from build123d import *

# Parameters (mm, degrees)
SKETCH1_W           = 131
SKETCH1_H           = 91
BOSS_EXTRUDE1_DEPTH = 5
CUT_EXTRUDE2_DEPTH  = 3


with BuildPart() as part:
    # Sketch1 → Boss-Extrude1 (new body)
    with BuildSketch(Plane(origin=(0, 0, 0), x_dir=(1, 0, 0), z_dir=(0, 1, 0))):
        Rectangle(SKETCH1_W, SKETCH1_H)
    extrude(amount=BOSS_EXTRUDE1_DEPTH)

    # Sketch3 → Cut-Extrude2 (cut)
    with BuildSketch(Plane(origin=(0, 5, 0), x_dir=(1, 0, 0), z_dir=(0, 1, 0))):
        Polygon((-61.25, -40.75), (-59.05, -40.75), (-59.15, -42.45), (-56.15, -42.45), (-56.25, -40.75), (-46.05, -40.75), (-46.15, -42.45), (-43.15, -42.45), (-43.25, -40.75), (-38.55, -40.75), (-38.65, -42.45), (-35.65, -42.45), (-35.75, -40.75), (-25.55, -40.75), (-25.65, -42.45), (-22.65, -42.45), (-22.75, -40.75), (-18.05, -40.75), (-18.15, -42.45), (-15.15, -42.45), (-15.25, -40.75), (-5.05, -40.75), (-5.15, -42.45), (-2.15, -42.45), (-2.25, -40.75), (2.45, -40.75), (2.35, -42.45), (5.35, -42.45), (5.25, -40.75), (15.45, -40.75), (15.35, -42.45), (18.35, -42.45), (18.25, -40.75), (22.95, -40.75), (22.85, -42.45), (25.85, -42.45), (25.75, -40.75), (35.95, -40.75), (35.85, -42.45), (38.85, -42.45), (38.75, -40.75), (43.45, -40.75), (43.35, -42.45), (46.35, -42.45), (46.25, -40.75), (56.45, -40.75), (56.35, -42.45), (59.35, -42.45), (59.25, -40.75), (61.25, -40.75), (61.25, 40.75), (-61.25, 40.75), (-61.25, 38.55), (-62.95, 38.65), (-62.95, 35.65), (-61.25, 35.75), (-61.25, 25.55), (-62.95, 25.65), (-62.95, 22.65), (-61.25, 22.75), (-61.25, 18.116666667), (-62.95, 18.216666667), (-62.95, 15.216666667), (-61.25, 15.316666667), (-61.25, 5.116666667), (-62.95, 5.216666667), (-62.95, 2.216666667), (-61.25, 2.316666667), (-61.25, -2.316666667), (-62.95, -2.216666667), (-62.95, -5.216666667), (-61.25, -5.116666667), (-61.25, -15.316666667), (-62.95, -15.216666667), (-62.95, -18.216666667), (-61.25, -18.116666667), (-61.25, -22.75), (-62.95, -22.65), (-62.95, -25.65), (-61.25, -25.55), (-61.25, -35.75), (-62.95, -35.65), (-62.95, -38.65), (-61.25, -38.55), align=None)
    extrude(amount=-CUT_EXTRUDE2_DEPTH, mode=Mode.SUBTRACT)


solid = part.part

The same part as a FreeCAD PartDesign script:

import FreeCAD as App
import Part
import Sketcher
Q = App.Units.Quantity


def add_polygon(sketch, points):
    """Adds a closed chain of lines whose ends are joined by coincident constraints."""
    first, n = sketch.GeometryCount, len(points)
    for a, b in zip(points, points[1:] + points[:1]):
        sketch.addGeometry(Part.LineSegment(App.Vector(*a, 0), App.Vector(*b, 0)), False)
    for i in range(n):
        sketch.addConstraint(Sketcher.Constraint("Coincident", first + i, 2, first + (i + 1) % n, 1))

doc = App.newDocument("Part")
params = doc.addObject("Spreadsheet::Sheet", "Params")
for row, (alias, value) in enumerate([
    ("sketch1_width", "131 mm"),
    ("sketch1_height", "91 mm"),
    ("pad1_length", "5 mm"),
    ("sketch2_width", "3 mm"),
    ("sketch2_width2", "2 mm"),
    ("sketch2_width3", "2.2 mm"),
    ("sketch2_width4", "10.2 mm"),
    ("sketch2_width5", "4.7 mm"),
    ("pocket1_length", "3 mm"),
], start=1):
    params.set(f"A{row}", alias)
    params.set(f"B{row}", "=" + value)
    params.setAlias(f"B{row}", alias)

body = doc.addObject("PartDesign::Body", "Body")

# Sketch on XZ plane
sketch1 = body.newObject("Sketcher::SketchObject", "Sketch")
sketch1.AttachmentSupport = (doc.getObject("XZ_Plane"), [""])
sketch1.MapMode = "FlatFace"
add_polygon(sketch1, [(-65.5, -45.5), (-65.5, 45.5), (65.5, 45.5), (65.5, -45.5)])  # lines 0-3
sketch1.addConstraint([
    Sketcher.Constraint("Vertical", 0),
    Sketcher.Constraint("Horizontal", 1),
    Sketcher.Constraint("Vertical", 2),
    Sketcher.Constraint("Horizontal", 3),
    Sketcher.Constraint("Symmetric", 0, 2, 2, 2, -1, 1),
    Sketcher.Constraint("DistanceX", 1, 1, 1, 2, Q("131 mm")),
    Sketcher.Constraint("DistanceY", 0, 1, 0, 2, Q("91 mm")),
])
sketch1.setExpression("Constraints[9]", "Params.sketch1_width")
sketch1.setExpression("Constraints[10]", "Params.sketch1_height")
pad1 = body.newObject("PartDesign::Pad", "Pad")
pad1.Profile = sketch1
pad1.setExpression("Length", "Params.pad1_length")
pad1.Reversed = True

# Sketch on XZ plane
sketch2 = body.newObject("Sketcher::SketchObject", "Sketch001")
sketch2.AttachmentSupport = (doc.getObject("XZ_Plane"), [""])
sketch2.MapMode = "FlatFace"
sketch2.AttachmentOffset = App.Placement(App.Vector(0, 0, -5), App.Rotation())
add_polygon(sketch2, [(-61.25, 40.75), (-59.05, 40.75), (-59.15, 42.45), (-56.15, 42.45), (-56.25, 40.75), (-46.05, 40.75), (-46.15, 42.45), (-43.15, 42.45), (-43.25, 40.75), (-38.55, 40.75), (-38.65, 42.45), (-35.65, 42.45), (-35.75, 40.75), (-25.55, 40.75), (-25.65, 42.45), (-22.65, 42.45), (-22.75, 40.75), (-18.05, 40.75), (-18.15, 42.45), (-15.15, 42.45), (-15.25, 40.75), (-5.05, 40.75), (-5.15, 42.45), (-2.15, 42.45), (-2.25, 40.75), (2.45, 40.75), (2.35, 42.45), (5.35, 42.45), (5.25, 40.75), (15.45, 40.75), (15.35, 42.45), (18.35, 42.45), (18.25, 40.75), (22.95, 40.75), (22.85, 42.45), (25.85, 42.45), (25.75, 40.75), (35.95, 40.75), (35.85, 42.45), (38.85, 42.45), (38.75, 40.75), (43.45, 40.75), (43.35, 42.45), (46.35, 42.45), (46.25, 40.75), (56.45, 40.75), (56.35, 42.45), (59.35, 42.45), (59.25, 40.75), (61.25, 40.75), (61.25, -40.75), (-61.25, -40.75), (-61.25, -38.55), (-62.95, -38.65), (-62.95, -35.65), (-61.25, -35.75), (-61.25, -25.55), (-62.95, -25.65), (-62.95, -22.65), (-61.25, -22.75), (-61.25, -18.116667), (-62.95, -18.216667), (-62.95, -15.216667), (-61.25, -15.316667), (-61.25, -5.116667), (-62.95, -5.216667), (-62.95, -2.216667), (-61.25, -2.316667), (-61.25, 2.316667), (-62.95, 2.216667), (-62.95, 5.216667), (-61.25, 5.116667), (-61.25, 15.316667), (-62.95, 15.216667), (-62.95, 18.216667), (-61.25, 18.116667), (-61.25, 22.75), (-62.95, 22.65), (-62.95, 25.65), (-61.25, 25.55), (-61.25, 35.75), (-62.95, 35.65), (-62.95, 38.65), (-61.25, 38.55)])  # lines 0-83
sketch2.addConstraint([
    Sketcher.Constraint("Horizontal", 0),
    Sketcher.Constraint("Horizontal", 2),
    Sketcher.Constraint("Horizontal", 4),
    Sketcher.Constraint("Horizontal", 6),
    Sketcher.Constraint("Horizontal", 8),
    Sketcher.Constraint("Horizontal", 10),
    Sketcher.Constraint("Horizontal", 12),
    Sketcher.Constraint("Horizontal", 14),
    Sketcher.Constraint("Horizontal", 16),
    Sketcher.Constraint("Horizontal", 18),
    Sketcher.Constraint("Horizontal", 20),
    Sketcher.Constraint("Horizontal", 22),
    Sketcher.Constraint("Horizontal", 24),
    Sketcher.Constraint("Horizontal", 26),
    Sketcher.Constraint("Horizontal", 28),
    Sketcher.Constraint("Horizontal", 30),
    Sketcher.Constraint("Horizontal", 32),
    Sketcher.Constraint("Horizontal", 34),
    Sketcher.Constraint("Horizontal", 36),
    Sketcher.Constraint("Horizontal", 38),
    Sketcher.Constraint("Horizontal", 40),
    Sketcher.Constraint("Horizontal", 42),
    Sketcher.Constraint("Horizontal", 44),
    Sketcher.Constraint("Horizontal", 46),
    Sketcher.Constraint("Horizontal", 48),
    Sketcher.Constraint("Vertical", 49),
    Sketcher.Constraint("Horizontal", 50),
    Sketcher.Constraint("Vertical", 51),
    Sketcher.Constraint("Vertical", 53),
    Sketcher.Constraint("Vertical", 55),
    Sketcher.Constraint("Vertical", 57),
    Sketcher.Constraint("Vertical", 59),
    Sketcher.Constraint("Vertical", 61),
    Sketcher.Constraint("Vertical", 63),
    Sketcher.Constraint("Vertical", 65),
    Sketcher.Constraint("Vertical", 67),
    Sketcher.Constraint("Vertical", 69),
    Sketcher.Constraint("Vertical", 71),
    Sketcher.Constraint("Vertical", 73),
    Sketcher.Constraint("Vertical", 75),
    Sketcher.Constraint("Vertical", 77),
    Sketcher.Constraint("Vertical", 79),
    Sketcher.Constraint("Vertical", 81),
    Sketcher.Constraint("Vertical", 83),
    Sketcher.Constraint("Symmetric", 48, 2, 50, 2, -1, 1),
    Sketcher.Constraint("Symmetric", 49, 2, 83, 2, -1, 1),
    Sketcher.Constraint("Symmetric", 65, 2, 68, 2, -1),
    Sketcher.Constraint("Symmetric", 63, 2, 70, 2, -1),
    Sketcher.Constraint("Symmetric", 61, 2, 72, 2, -1),
    Sketcher.Constraint("Symmetric", 59, 2, 74, 2, -1),
    Sketcher.Constraint("Symmetric", 57, 2, 76, 2, -1),
    Sketcher.Constraint("Symmetric", 55, 2, 78, 2, -1),
    Sketcher.Constraint("Symmetric", 53, 2, 80, 2, -1),
    Sketcher.Constraint("Parallel", 1, 5),
    Sketcher.Constraint("Parallel", 3, 7),
    Sketcher.Constraint("Parallel", 5, 9),
    Sketcher.Constraint("Parallel", 7, 11),
    Sketcher.Constraint("Parallel", 9, 13),
    Sketcher.Constraint("Parallel", 11, 15),
    Sketcher.Constraint("Parallel", 13, 17),
    Sketcher.Constraint("Parallel", 15, 19),
    Sketcher.Constraint("Parallel", 17, 21),
    Sketcher.Constraint("Parallel", 19, 23),
    Sketcher.Constraint("Parallel", 21, 25),
    Sketcher.Constraint("Parallel", 23, 27),
    Sketcher.Constraint("Parallel", 25, 29),
    Sketcher.Constraint("Parallel", 27, 31),
    Sketcher.Constraint("Parallel", 29, 33),
    Sketcher.Constraint("Parallel", 31, 35),
    Sketcher.Constraint("Parallel", 33, 37),
    Sketcher.Constraint("Parallel", 35, 39),
    Sketcher.Constraint("Parallel", 37, 41),
    Sketcher.Constraint("Parallel", 39, 43),
    Sketcher.Constraint("Parallel", 41, 45),
    Sketcher.Constraint("Parallel", 43, 47),
    Sketcher.Constraint("Perpendicular", 45, 52),
    Sketcher.Constraint("Perpendicular", 47, 54),
    Sketcher.Constraint("Parallel", 52, 56),
    Sketcher.Constraint("Parallel", 54, 58),
    Sketcher.Constraint("Parallel", 56, 60),
    Sketcher.Constraint("Parallel", 58, 62),
    Sketcher.Constraint("Parallel", 60, 64),
    Sketcher.Constraint("Parallel", 62, 66),
    Sketcher.Constraint("Parallel", 64, 68),
    Sketcher.Constraint("Parallel", 66, 70),
    Sketcher.Constraint("Parallel", 68, 72),
    Sketcher.Constraint("Parallel", 70, 74),
    Sketcher.Constraint("Parallel", 72, 76),
    Sketcher.Constraint("Parallel", 74, 78),
    Sketcher.Constraint("Parallel", 76, 80),
    Sketcher.Constraint("Parallel", 78, 82),
    Sketcher.Constraint("Horizontal", 0, 2, 3, 2),
    Sketcher.Constraint("Horizontal", 2, 2, 5, 2),
    Sketcher.Constraint("Horizontal", 4, 2, 7, 2),
    Sketcher.Constraint("Horizontal", 6, 2, 9, 2),
    Sketcher.Constraint("Horizontal", 8, 2, 11, 2),
    Sketcher.Constraint("Horizontal", 10, 2, 13, 2),
    Sketcher.Constraint("Horizontal", 12, 2, 15, 2),
    Sketcher.Constraint("Horizontal", 14, 2, 17, 2),
    Sketcher.Constraint("Horizontal", 16, 2, 19, 2),
    Sketcher.Constraint("Horizontal", 18, 2, 21, 2),
    Sketcher.Constraint("Horizontal", 20, 2, 23, 2),
    Sketcher.Constraint("Horizontal", 22, 2, 25, 2),
    Sketcher.Constraint("Horizontal", 24, 2, 27, 2),
    Sketcher.Constraint("Horizontal", 26, 2, 29, 2),
    Sketcher.Constraint("Horizontal", 28, 2, 31, 2),
    Sketcher.Constraint("Horizontal", 30, 2, 33, 2),
    Sketcher.Constraint("Horizontal", 32, 2, 35, 2),
    Sketcher.Constraint("Horizontal", 34, 2, 37, 2),
    Sketcher.Constraint("Horizontal", 36, 2, 39, 2),
    Sketcher.Constraint("Horizontal", 38, 2, 41, 2),
    Sketcher.Constraint("Horizontal", 40, 2, 43, 2),
    Sketcher.Constraint("Horizontal", 42, 2, 45, 2),
    Sketcher.Constraint("Vertical", 51, 2, 54, 2),
    Sketcher.Constraint("Vertical", 53, 2, 56, 2),
    Sketcher.Constraint("Vertical", 55, 2, 58, 2),
    Sketcher.Constraint("Vertical", 57, 2, 60, 2),
    Sketcher.Constraint("Vertical", 59, 2, 62, 2),
    Sketcher.Constraint("Vertical", 61, 2, 64, 2),
    Sketcher.Constraint("Vertical", 63, 2, 66, 2),
    Sketcher.Constraint("Equal", 2, 6),
    Sketcher.Constraint("Equal", 6, 10),
    Sketcher.Constraint("Equal", 4, 12),
    Sketcher.Constraint("Equal", 10, 14),
    Sketcher.Constraint("Equal", 8, 16),
    Sketcher.Constraint("Equal", 14, 18),
    Sketcher.Constraint("Equal", 12, 20),
    Sketcher.Constraint("Equal", 18, 22),
    Sketcher.Constraint("Equal", 16, 24),
    Sketcher.Constraint("Equal", 22, 26),
    Sketcher.Constraint("Equal", 20, 28),
    Sketcher.Constraint("Equal", 26, 30),
    Sketcher.Constraint("Equal", 24, 32),
    Sketcher.Constraint("Equal", 30, 34),
    Sketcher.Constraint("Equal", 28, 36),
    Sketcher.Constraint("Equal", 34, 38),
    Sketcher.Constraint("Equal", 32, 40),
    Sketcher.Constraint("Equal", 38, 42),
    Sketcher.Constraint("Equal", 36, 44),
    Sketcher.Constraint("Equal", 42, 46),
    Sketcher.Constraint("Equal", 0, 51),
    Sketcher.Constraint("Equal", 46, 53),
    Sketcher.Constraint("Equal", 44, 55),
    Sketcher.Constraint("Equal", 53, 57),
    Sketcher.Constraint("Equal", 57, 61),
    Sketcher.Constraint("Equal", 55, 63),
    Sketcher.Constraint("Equal", 61, 65),
    Sketcher.Constraint("Equal", 59, 67),
    Sketcher.Constraint("Equal", 65, 69),
    Sketcher.Constraint("Equal", 77, 81),
    Sketcher.Constraint("Equal", 47, 52),
    Sketcher.Constraint("DistanceX", 2, 1, 2, 2, Q("3 mm")),
    Sketcher.Constraint("DistanceX", 48, 1, 48, 2, Q("2 mm")),
    Sketcher.Constraint("DistanceX", 0, 1, 0, 2, Q("2.2 mm")),
    Sketcher.Constraint("DistanceX", 4, 1, 4, 2, Q("10.2 mm")),
    Sketcher.Constraint("DistanceX", 8, 1, 8, 2, Q("4.7 mm")),
    Sketcher.Constraint("DistanceX", 50, 2, 50, 1, Q("122.5 mm")),
    Sketcher.Constraint("DistanceY", 49, 2, 49, 1, Q("81.5 mm")),
    Sketcher.Constraint("DistanceY", -1, 1, 1, 2, Q("42.45 mm")),
])
sketch2.setExpression("Constraints[235]", "Params.sketch2_width")
sketch2.setExpression("Constraints[236]", "Params.sketch2_width2")
sketch2.setExpression("Constraints[237]", "Params.sketch2_width3")
sketch2.setExpression("Constraints[238]", "Params.sketch2_width4")
sketch2.setExpression("Constraints[239]", "Params.sketch2_width5")
pocket1 = body.newObject("PartDesign::Pocket", "Pocket")
pocket1.Profile = sketch2
pocket1.setExpression("Length", "Params.pocket1_length")
pocket1.Reversed = True

doc.recompute()
